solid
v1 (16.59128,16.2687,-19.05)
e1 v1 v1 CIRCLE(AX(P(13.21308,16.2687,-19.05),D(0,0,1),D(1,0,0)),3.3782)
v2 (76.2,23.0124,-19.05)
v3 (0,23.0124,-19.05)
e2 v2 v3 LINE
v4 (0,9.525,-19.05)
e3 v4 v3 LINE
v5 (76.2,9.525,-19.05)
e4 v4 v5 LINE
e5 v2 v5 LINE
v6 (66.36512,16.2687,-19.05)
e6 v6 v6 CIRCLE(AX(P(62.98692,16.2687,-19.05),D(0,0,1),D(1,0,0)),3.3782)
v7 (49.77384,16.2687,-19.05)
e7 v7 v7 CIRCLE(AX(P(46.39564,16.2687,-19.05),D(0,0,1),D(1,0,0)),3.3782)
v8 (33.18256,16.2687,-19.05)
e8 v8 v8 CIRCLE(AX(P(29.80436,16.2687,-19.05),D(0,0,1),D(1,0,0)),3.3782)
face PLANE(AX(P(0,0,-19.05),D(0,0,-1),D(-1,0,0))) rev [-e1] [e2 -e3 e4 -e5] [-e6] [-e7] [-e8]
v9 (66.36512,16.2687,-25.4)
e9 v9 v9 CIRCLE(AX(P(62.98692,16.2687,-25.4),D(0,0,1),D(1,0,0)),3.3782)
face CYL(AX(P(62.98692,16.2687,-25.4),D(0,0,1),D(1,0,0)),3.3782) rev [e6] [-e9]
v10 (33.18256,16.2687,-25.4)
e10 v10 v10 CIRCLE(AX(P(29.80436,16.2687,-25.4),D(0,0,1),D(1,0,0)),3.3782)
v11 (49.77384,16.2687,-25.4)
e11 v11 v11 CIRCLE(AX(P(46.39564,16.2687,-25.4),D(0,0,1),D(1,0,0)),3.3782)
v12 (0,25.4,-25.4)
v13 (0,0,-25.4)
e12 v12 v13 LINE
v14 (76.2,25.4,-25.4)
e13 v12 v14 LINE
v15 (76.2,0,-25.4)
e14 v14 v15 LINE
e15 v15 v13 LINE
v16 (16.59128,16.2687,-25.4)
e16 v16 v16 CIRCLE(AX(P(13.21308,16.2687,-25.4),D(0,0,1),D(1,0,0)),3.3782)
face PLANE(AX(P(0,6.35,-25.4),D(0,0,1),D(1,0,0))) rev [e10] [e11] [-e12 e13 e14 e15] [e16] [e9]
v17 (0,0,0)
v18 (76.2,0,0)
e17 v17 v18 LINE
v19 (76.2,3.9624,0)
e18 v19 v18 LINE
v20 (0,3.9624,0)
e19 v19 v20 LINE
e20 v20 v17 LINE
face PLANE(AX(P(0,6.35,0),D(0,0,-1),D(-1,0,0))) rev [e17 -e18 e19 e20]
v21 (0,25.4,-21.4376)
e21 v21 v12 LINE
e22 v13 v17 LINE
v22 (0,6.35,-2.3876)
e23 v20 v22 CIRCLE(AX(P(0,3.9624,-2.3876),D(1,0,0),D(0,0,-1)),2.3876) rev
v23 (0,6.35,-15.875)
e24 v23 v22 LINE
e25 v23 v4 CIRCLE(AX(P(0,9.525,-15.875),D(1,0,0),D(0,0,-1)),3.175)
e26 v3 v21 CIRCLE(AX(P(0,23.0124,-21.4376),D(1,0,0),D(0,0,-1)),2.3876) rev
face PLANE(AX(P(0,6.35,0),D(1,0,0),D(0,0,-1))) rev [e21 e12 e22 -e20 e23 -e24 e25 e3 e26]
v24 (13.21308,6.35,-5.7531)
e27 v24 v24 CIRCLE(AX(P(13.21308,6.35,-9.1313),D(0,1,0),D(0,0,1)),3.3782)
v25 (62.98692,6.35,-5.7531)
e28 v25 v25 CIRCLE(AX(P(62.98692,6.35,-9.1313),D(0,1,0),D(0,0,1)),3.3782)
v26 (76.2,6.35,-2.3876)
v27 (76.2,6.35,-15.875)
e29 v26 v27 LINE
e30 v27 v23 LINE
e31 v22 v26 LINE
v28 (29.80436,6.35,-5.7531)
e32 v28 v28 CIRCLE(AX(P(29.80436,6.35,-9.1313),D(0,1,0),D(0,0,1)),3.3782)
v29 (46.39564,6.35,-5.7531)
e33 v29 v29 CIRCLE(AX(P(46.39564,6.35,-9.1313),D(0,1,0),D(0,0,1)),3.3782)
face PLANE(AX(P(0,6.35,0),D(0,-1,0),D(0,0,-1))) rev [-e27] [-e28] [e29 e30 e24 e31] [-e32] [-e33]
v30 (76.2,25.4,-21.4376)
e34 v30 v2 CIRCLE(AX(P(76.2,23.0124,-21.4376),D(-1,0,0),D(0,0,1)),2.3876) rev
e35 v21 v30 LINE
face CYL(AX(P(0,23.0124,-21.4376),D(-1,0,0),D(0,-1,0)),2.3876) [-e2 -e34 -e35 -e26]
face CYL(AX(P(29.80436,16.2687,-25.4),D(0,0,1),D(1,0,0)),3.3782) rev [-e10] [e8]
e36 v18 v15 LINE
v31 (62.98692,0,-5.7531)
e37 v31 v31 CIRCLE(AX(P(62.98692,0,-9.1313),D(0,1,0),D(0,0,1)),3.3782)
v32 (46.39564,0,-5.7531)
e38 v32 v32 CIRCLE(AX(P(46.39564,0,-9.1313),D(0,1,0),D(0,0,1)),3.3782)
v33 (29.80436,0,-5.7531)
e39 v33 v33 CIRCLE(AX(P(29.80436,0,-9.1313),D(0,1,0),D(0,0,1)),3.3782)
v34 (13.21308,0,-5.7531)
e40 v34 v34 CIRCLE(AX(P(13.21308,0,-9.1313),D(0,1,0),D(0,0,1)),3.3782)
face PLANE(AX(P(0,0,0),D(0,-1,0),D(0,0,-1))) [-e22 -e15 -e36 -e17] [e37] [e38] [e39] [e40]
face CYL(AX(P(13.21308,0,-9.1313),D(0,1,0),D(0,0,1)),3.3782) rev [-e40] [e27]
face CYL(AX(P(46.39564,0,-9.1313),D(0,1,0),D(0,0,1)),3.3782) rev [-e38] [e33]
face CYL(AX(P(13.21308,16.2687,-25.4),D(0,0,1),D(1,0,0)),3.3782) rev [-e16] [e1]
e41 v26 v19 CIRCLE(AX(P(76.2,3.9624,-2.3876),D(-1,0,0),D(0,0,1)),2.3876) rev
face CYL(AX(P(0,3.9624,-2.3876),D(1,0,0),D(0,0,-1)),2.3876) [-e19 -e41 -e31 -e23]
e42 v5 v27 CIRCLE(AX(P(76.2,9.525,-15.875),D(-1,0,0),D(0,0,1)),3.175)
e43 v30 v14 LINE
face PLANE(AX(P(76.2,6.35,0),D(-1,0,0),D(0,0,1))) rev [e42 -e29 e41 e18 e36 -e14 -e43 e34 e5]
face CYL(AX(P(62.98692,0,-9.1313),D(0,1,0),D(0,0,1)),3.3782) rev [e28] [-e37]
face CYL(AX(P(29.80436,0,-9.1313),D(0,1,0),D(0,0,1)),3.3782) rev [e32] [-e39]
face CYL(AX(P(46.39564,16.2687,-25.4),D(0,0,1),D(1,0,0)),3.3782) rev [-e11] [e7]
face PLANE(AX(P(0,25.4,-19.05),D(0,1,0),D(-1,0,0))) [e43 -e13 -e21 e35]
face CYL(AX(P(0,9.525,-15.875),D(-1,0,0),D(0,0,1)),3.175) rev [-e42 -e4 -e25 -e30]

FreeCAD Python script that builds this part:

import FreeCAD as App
import Part
import Sketcher
Q = App.Units.Quantity


def edges_at(feature, points):
    """Names of the edges that pass closest to the given points."""
    edges = feature.Shape.Edges
    near = lambda p: min(range(len(edges)), key=lambda i: edges[i].distToShape(Part.Vertex(*p))[0])
    return sorted({f"Edge{near(p) + 1}" for p in points})

doc = App.newDocument("Part")
body = doc.addObject("PartDesign::Body", "Body")

# Sketch on XZ plane
sketch1 = body.newObject("Sketcher::SketchObject", "Sketch")
sketch1.AttachmentSupport = (doc.getObject("XZ_Plane"), [""])
sketch1.MapMode = "FlatFace"
sketch1.addGeometry([
    Part.LineSegment(App.Vector(0, -25.4, 0), App.Vector(0, 0, 0)),
    Part.LineSegment(App.Vector(0, 0, 0), App.Vector(76.2, 0, 0)),
    Part.LineSegment(App.Vector(76.2, 0, 0), App.Vector(76.2, -25.4, 0)),
    Part.LineSegment(App.Vector(76.2, -25.4, 0), App.Vector(0, -25.4, 0)),
], False)
sketch1.addConstraint([
    Sketcher.Constraint("Coincident", 0, 2, 1, 1),
    Sketcher.Constraint("Coincident", 1, 2, 2, 1),
    Sketcher.Constraint("Coincident", 2, 2, 3, 1),
    Sketcher.Constraint("Coincident", 3, 2, 0, 1),
    Sketcher.Constraint("Vertical", 0),
    Sketcher.Constraint("Horizontal", 1),
    Sketcher.Constraint("Vertical", 2),
    Sketcher.Constraint("Horizontal", 3),
    Sketcher.Constraint("Coincident", 0, 2, -1, 1),
    Sketcher.Constraint("DistanceX", 1, 1, 1, 2, Q("3 in")),
    Sketcher.Constraint("DistanceY", 0, 1, 0, 2, Q("1 in")),
])
pad1 = body.newObject("PartDesign::Pad", "Pad")
pad1.Profile = sketch1
pad1.Length = Q("0.25 in")
pad1.Reversed = True

# Sketch on XY plane
sketch2 = body.newObject("Sketcher::SketchObject", "Sketch001")
sketch2.AttachmentSupport = (doc.getObject("XY_Plane"), [""])
sketch2.MapMode = "FlatFace"
sketch2.AttachmentOffset = App.Placement(App.Vector(0, 0, -1 * 25.4), App.Rotation())
sketch2.addGeometry([
    Part.LineSegment(App.Vector(76.2, 25.4, 0), App.Vector(76.2, 0, 0)),
    Part.LineSegment(App.Vector(76.2, 0, 0), App.Vector(0, 0, 0)),
    Part.LineSegment(App.Vector(0, 0, 0), App.Vector(0, 25.4, 0)),
    Part.LineSegment(App.Vector(0, 25.4, 0), App.Vector(76.2, 25.4, 0)),
], False)
sketch2.addConstraint([
    Sketcher.Constraint("Coincident", 0, 2, 1, 1),
    Sketcher.Constraint("Coincident", 1, 2, 2, 1),
    Sketcher.Constraint("Coincident", 2, 2, 3, 1),
    Sketcher.Constraint("Coincident", 3, 2, 0, 1),
    Sketcher.Constraint("Vertical", 0),
    Sketcher.Constraint("Horizontal", 1),
    Sketcher.Constraint("Vertical", 2),
    Sketcher.Constraint("Horizontal", 3),
    Sketcher.Constraint("Coincident", 1, 2, -1, 1),
    Sketcher.Constraint("DistanceX", 1, 2, 1, 1, Q("3 in")),
    Sketcher.Constraint("DistanceY", 0, 2, 0, 1, Q("1 in")),
])
pad2 = body.newObject("PartDesign::Pad", "Pad001")
pad2.Profile = sketch2
pad2.Length = Q("0.25 in")
doc.recompute()

fillet = body.newObject("PartDesign::Fillet", "Fillet")
fillet.Base = (pad2, edges_at(pad2, [(38.1, 6.35, -19.05)]))
fillet.Radius = Q("0.125 in")
doc.recompute()

fillet2 = body.newObject("PartDesign::Fillet", "Fillet001")
fillet2.Base = (fillet, edges_at(fillet, [(38.1, 25.4, -19.05), (38.1, 6.35, 0)]))
fillet2.Radius = Q("0.094 in")

# Sketch on XZ plane
sketch3 = body.newObject("Sketcher::SketchObject", "Sketch002")
sketch3.AttachmentSupport = (doc.getObject("XZ_Plane"), [""])
sketch3.MapMode = "FlatFace"
sketch3.AttachmentOffset = App.Placement(App.Vector(0, 0, -0.25 * 25.4), App.Rotation())
sketch3.addGeometry([
    Part.Circle(App.Vector(13.21308, -9.1313, 0), App.Vector(0, 0, 1), 3.3782),
    Part.Circle(App.Vector(29.80436, -9.1313, 0), App.Vector(0, 0, 1), 3.3782),
    Part.Circle(App.Vector(46.39564, -9.1313, 0), App.Vector(0, 0, 1), 3.3782),
    Part.Circle(App.Vector(62.98692, -9.1313, 0), App.Vector(0, 0, 1), 3.3782),
], False)
sketch3.addConstraint([
    Sketcher.Constraint("Equal", 0, 1),
    Sketcher.Constraint("Equal", 1, 2),
    Sketcher.Constraint("Equal", 2, 3),
    Sketcher.Constraint("Horizontal", 0, 3, 1, 3),
    Sketcher.Constraint("Horizontal", 1, 3, 2, 3),
    Sketcher.Constraint("Horizontal", 2, 3, 3, 3),
    Sketcher.Constraint("Diameter", 0, Q("0.266 in")),
    Sketcher.Constraint("DistanceX", -1, 1, 0, 3, Q("0.5202 in")),
    Sketcher.Constraint("DistanceY", 0, 3, -1, 1, Q("0.3595 in")),
    Sketcher.Constraint("DistanceX", -1, 1, 1, 3, Q("1.1734 in")),
    Sketcher.Constraint("DistanceX", -1, 1, 2, 3, Q("1.8266 in")),
    Sketcher.Constraint("DistanceX", -1, 1, 3, 3, Q("2.4798 in")),
])
pocket1 = body.newObject("PartDesign::Pocket", "Pocket")
pocket1.Profile = sketch3
pocket1.Type = "ThroughAll"
pocket1.Reversed = True

# Sketch on XY plane
sketch4 = body.newObject("Sketcher::SketchObject", "Sketch003")
sketch4.AttachmentSupport = (doc.getObject("XY_Plane"), [""])
sketch4.MapMode = "FlatFace"
sketch4.AttachmentOffset = App.Placement(App.Vector(0, 0, -0.75 * 25.4), App.Rotation())
sketch4.addGeometry([
    Part.Circle(App.Vector(13.21308, 16.2687, 0), App.Vector(0, 0, 1), 3.3782),
    Part.Circle(App.Vector(29.80436, 16.2687, 0), App.Vector(0, 0, 1), 3.3782),
    Part.Circle(App.Vector(46.39564, 16.2687, 0), App.Vector(0, 0, 1), 3.3782),
    Part.Circle(App.Vector(62.98692, 16.2687, 0), App.Vector(0, 0, 1), 3.3782),
], False)
sketch4.addConstraint([
    Sketcher.Constraint("Equal", 0, 1),
    Sketcher.Constraint("Equal", 1, 2),
    Sketcher.Constraint("Equal", 2, 3),
    Sketcher.Constraint("Horizontal", 0, 3, 1, 3),
    Sketcher.Constraint("Horizontal", 1, 3, 2, 3),
    Sketcher.Constraint("Horizontal", 2, 3, 3, 3),
    Sketcher.Constraint("Diameter", 0, Q("0.266 in")),
    Sketcher.Constraint("DistanceX", -1, 1, 0, 3, Q("0.5202 in")),
    Sketcher.Constraint("DistanceY", -1, 1, 0, 3, Q("0.6405 in")),
    Sketcher.Constraint("DistanceX", -1, 1, 1, 3, Q("1.1734 in")),
    Sketcher.Constraint("DistanceX", -1, 1, 2, 3, Q("1.8266 in")),
    Sketcher.Constraint("DistanceX", -1, 1, 3, 3, Q("2.4798 in")),
])
pocket2 = body.newObject("PartDesign::Pocket", "Pocket001")
pocket2.Profile = sketch4
pocket2.Type = "ThroughAll"

doc.recompute()
